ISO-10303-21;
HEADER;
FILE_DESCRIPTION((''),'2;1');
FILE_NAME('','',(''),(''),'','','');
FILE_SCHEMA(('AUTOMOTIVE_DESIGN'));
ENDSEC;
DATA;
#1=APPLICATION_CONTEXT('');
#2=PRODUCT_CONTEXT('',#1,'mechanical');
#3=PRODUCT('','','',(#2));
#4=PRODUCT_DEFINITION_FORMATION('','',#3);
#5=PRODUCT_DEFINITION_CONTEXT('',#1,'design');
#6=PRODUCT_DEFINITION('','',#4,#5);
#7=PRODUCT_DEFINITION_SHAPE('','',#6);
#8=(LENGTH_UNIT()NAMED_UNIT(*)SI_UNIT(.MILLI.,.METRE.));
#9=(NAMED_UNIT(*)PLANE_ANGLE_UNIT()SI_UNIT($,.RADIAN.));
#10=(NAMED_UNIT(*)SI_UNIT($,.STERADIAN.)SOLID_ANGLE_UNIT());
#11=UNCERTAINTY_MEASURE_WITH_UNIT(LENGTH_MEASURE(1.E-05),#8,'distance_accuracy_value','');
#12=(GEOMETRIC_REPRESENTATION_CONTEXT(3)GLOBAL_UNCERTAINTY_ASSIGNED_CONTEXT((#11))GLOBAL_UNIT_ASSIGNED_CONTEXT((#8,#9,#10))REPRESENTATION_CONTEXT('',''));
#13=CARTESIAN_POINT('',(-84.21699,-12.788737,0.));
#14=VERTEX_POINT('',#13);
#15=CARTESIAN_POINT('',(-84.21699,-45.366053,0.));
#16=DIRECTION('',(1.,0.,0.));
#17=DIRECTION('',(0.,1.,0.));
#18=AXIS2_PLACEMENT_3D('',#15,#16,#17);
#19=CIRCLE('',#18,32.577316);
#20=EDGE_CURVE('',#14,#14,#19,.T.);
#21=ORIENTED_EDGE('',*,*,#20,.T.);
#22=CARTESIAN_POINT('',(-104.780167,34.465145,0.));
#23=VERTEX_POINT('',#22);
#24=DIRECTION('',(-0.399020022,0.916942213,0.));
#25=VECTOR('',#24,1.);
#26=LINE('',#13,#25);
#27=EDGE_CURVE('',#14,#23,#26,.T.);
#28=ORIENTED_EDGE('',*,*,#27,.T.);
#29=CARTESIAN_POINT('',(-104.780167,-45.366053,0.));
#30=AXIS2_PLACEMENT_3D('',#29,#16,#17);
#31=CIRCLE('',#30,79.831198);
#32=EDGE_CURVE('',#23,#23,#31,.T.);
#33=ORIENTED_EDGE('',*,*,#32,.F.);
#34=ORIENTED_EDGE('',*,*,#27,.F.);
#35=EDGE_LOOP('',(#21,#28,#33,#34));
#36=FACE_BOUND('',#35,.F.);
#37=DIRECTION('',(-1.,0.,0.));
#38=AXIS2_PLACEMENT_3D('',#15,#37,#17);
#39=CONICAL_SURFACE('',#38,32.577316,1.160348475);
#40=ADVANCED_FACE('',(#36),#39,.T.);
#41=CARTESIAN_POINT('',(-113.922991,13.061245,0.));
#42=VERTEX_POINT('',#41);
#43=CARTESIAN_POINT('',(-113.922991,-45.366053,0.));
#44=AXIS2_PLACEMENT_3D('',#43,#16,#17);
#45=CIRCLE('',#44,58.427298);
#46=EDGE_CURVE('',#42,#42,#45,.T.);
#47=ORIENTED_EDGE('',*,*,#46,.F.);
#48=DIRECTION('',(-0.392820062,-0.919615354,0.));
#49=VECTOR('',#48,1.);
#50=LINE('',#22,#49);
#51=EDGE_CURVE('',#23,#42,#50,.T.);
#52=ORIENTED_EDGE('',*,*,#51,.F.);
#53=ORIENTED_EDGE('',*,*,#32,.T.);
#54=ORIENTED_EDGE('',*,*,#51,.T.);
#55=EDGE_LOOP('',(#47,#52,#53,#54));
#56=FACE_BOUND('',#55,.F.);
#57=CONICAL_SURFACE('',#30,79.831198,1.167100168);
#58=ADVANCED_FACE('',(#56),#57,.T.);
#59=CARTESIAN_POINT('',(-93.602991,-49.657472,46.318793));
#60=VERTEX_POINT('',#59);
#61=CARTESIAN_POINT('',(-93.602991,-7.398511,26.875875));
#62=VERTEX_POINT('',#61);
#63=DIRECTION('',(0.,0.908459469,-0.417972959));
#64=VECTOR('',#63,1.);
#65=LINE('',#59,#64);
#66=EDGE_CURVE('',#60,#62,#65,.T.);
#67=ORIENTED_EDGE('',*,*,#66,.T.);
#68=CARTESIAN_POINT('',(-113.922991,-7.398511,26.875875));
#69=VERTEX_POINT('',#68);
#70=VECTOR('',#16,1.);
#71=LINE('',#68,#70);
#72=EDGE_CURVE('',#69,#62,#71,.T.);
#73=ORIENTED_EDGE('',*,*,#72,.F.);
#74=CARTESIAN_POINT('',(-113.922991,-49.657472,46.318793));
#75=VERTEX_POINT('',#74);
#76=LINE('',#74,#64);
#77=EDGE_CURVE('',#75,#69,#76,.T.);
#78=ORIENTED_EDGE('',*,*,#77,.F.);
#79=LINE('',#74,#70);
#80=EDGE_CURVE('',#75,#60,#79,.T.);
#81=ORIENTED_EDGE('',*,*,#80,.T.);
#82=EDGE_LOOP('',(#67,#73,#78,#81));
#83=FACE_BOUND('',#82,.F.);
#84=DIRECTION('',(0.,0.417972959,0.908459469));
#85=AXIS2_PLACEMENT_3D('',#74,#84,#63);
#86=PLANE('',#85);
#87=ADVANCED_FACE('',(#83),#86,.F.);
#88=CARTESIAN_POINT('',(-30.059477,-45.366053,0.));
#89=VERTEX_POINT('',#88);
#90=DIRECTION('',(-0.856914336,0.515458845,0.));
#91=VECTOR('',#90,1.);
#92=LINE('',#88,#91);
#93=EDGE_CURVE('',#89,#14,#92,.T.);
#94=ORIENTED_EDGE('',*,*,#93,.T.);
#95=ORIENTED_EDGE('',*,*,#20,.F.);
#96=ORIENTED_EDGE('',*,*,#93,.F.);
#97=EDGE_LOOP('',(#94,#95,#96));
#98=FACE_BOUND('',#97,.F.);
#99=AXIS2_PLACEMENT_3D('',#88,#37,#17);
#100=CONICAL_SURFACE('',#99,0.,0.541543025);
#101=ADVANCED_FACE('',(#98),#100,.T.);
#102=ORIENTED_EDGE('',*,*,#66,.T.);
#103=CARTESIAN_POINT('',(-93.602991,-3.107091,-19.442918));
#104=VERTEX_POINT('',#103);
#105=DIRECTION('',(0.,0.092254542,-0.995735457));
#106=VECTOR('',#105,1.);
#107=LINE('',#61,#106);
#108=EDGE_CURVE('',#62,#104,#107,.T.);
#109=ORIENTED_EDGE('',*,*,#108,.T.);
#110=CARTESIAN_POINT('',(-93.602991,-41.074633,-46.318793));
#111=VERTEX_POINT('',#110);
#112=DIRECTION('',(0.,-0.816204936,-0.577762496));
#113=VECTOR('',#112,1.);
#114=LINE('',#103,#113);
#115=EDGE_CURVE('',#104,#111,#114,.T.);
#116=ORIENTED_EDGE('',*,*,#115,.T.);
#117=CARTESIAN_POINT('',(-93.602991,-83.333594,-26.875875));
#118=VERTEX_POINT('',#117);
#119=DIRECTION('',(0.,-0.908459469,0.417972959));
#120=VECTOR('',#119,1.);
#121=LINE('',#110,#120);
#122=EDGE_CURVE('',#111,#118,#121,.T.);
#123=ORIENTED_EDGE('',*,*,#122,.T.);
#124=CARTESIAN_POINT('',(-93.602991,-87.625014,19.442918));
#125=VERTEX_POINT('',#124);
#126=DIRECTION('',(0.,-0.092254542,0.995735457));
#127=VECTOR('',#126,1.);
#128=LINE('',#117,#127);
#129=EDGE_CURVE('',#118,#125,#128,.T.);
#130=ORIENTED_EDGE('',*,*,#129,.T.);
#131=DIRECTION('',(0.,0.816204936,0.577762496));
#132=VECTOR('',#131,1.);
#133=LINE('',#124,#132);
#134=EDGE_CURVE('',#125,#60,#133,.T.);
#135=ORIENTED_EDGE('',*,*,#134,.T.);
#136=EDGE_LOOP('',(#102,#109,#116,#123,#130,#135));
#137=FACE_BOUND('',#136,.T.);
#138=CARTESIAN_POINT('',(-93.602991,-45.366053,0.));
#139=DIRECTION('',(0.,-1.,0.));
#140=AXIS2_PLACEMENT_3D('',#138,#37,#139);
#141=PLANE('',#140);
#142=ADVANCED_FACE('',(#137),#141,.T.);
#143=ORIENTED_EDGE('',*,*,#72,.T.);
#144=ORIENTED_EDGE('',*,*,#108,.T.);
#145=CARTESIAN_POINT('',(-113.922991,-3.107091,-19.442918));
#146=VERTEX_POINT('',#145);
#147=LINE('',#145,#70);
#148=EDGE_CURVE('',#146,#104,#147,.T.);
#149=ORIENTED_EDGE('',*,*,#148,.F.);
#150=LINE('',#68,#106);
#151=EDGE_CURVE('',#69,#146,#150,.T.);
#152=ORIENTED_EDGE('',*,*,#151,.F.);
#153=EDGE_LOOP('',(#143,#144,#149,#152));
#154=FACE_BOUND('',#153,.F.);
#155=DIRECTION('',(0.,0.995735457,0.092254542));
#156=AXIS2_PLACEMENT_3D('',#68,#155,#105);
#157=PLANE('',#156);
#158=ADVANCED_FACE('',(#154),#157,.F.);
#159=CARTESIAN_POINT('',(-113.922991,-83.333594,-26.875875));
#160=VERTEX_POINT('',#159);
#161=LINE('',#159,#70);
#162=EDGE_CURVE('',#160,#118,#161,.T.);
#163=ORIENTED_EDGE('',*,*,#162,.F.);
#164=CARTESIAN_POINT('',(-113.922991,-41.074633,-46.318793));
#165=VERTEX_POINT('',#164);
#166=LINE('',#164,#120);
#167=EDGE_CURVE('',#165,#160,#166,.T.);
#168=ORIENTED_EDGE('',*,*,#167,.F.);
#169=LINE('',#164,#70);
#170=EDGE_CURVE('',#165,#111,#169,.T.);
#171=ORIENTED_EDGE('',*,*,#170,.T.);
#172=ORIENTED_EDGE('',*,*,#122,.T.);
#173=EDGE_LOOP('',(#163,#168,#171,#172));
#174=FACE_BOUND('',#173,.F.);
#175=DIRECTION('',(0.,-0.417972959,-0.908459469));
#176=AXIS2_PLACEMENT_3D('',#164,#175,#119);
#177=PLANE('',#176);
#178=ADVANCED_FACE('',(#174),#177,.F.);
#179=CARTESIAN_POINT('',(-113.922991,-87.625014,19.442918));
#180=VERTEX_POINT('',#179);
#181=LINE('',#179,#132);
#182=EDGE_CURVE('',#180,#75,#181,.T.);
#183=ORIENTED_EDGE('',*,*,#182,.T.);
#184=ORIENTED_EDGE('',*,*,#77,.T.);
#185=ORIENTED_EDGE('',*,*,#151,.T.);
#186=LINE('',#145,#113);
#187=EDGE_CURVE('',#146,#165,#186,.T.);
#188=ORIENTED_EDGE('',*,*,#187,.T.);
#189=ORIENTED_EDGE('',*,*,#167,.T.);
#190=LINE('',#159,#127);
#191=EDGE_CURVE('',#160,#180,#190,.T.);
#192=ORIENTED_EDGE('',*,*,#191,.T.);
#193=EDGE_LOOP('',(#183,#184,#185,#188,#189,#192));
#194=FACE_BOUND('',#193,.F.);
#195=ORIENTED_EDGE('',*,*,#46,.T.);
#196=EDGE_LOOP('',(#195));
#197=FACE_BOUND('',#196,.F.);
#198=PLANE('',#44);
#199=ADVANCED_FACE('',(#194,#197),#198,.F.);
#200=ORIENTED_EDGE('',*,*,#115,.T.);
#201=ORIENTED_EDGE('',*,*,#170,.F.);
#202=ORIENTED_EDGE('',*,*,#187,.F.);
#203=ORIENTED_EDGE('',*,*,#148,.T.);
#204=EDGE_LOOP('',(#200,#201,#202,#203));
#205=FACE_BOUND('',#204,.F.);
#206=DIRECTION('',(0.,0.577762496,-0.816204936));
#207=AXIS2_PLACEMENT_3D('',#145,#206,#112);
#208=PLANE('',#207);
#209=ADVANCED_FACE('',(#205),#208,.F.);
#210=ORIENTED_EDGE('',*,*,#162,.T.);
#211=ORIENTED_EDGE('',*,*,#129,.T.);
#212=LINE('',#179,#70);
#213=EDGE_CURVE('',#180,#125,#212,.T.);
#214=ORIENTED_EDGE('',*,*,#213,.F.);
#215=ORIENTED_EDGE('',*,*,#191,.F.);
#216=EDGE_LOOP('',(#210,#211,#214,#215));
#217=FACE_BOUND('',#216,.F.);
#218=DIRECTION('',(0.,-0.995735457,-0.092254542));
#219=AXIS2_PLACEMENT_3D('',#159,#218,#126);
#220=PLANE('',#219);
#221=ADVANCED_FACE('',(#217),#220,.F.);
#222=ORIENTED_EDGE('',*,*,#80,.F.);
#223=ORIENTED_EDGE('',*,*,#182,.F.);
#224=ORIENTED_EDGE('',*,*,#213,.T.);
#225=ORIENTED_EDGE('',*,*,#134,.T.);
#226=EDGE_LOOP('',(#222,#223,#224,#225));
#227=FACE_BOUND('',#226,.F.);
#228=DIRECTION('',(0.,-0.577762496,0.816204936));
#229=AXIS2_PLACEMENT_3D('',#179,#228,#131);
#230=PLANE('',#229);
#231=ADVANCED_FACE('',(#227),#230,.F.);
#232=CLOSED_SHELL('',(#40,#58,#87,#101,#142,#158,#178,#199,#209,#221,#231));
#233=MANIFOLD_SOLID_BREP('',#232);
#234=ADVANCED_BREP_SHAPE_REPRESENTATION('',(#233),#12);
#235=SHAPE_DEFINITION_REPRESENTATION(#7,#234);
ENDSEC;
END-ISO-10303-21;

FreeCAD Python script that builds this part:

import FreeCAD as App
import Part
import Sketcher

V = App.Vector
Q = App.Units.Quantity

doc = App.newDocument("Part")
body = doc.addObject("PartDesign::Body", "Body")

sketch1 = doc.addObject("Sketcher::SketchObject", "Sketch")
body.addObject(sketch1)
sketch1.AttachmentSupport = (doc.XY_Plane, [""])
sketch1.MapMode = "FlatFace"
sketch1.addGeometry(Part.LineSegment(V(-105, 34, 0), V(-114, 13, 0)), False)
sketch1.addGeometry(Part.LineSegment(V(-114, 13, 0), V(-114, -45, 0)), False)
sketch1.addGeometry(Part.LineSegment(V(-114, -45, 0), V(-30, -45, 0)), False)
sketch1.addGeometry(Part.LineSegment(V(-30, -45, 0), V(-84, -13, 0)), False)
sketch1.addGeometry(Part.LineSegment(V(-84, -13, 0), V(-105, 34, 0)), False)
sketch1.addGeometry(Part.LineSegment(V(-114, -45, 0), V(-30, -45, 0)), True)
sketch1.addConstraint(Sketcher.Constraint("Coincident", 0, 2, 1, 1))
sketch1.addConstraint(Sketcher.Constraint("Coincident", 1, 2, 2, 1))
sketch1.addConstraint(Sketcher.Constraint("Coincident", 2, 2, 3, 1))
sketch1.addConstraint(Sketcher.Constraint("Coincident", 3, 2, 4, 1))
sketch1.addConstraint(Sketcher.Constraint("Coincident", 4, 2, 0, 1))
sketch1.addConstraint(Sketcher.Constraint("Vertical", 1))
sketch1.addConstraint(Sketcher.Constraint("Horizontal", 2))
sketch1.addConstraint(Sketcher.Constraint("Horizontal", 5))
sketch1.addConstraint(Sketcher.Constraint("Coincident", 5, 1, 1, 2))
sketch1.addConstraint(Sketcher.Constraint("Equal", 2, 5))
sketch1.addConstraint(Sketcher.Constraint("Distance", 4, 51.534198))
sketch1.addConstraint(Sketcher.Constraint("DistanceX", 0, 2, 3, 2, 29.706001))
sketch1.addConstraint(Sketcher.Constraint("DistanceY", 0, 2, 4, 2, 21.4039))
sketch1.addConstraint(Sketcher.Constraint("DistanceY", 1, 2, 4, 2, 79.831198))
sketch1.addConstraint(Sketcher.Constraint("Distance", 0, 23.27484))
sketch1.addConstraint(Sketcher.Constraint("DistanceX", 2, 1, 2, 2, 83.863514))
sketch1.addConstraint(Sketcher.Constraint("DistanceX", 0, 2, -1, 1, 113.922991))
sketch1.addConstraint(Sketcher.Constraint("DistanceY", -1, 1, 0, 2, 13.061245))
revolution = doc.addObject("PartDesign::Revolution", "Revolution")
body.addObject(revolution)
revolution.Profile = sketch1
revolution.ReferenceAxis = (sketch1, ["Axis0"])
revolution.Angle = 360

sketch2 = doc.addObject("Sketcher::SketchObject", "Sketch001")
body.addObject(sketch2)
sketch2.AttachmentSupport = (doc.YZ_Plane, [""])
sketch2.MapMode = "FlatFace"
sketch2.AttachmentOffset = App.Placement(V(0, 0, -113.922991), App.Rotation())
sketch2.addGeometry(Part.LineSegment(V(-83, -27, 0), V(-88, 19, 0)), False)
sketch2.addGeometry(Part.LineSegment(V(-88, 19, 0), V(-50, 46, 0)), False)
sketch2.addGeometry(Part.LineSegment(V(-50, 46, 0), V(-7, 27, 0)), False)
sketch2.addGeometry(Part.LineSegment(V(-7, 27, 0), V(-3, -19, 0)), False)
sketch2.addGeometry(Part.LineSegment(V(-3, -19, 0), V(-41, -46, 0)), False)
sketch2.addGeometry(Part.LineSegment(V(-41, -46, 0), V(-83, -27, 0)), False)
sketch2.addConstraint(Sketcher.Constraint("Coincident", 0, 2, 1, 1))
sketch2.addConstraint(Sketcher.Constraint("Coincident", 1, 2, 2, 1))
sketch2.addConstraint(Sketcher.Constraint("Coincident", 2, 2, 3, 1))
sketch2.addConstraint(Sketcher.Constraint("Coincident", 3, 2, 4, 1))
sketch2.addConstraint(Sketcher.Constraint("Coincident", 4, 2, 5, 1))
sketch2.addConstraint(Sketcher.Constraint("Coincident", 5, 2, 0, 1))
sketch2.addConstraint(Sketcher.Constraint("Parallel", 0, 3))
sketch2.addConstraint(Sketcher.Constraint("Parallel", 1, 4))
sketch2.addConstraint(Sketcher.Constraint("Parallel", 2, 5))
sketch2.addConstraint(Sketcher.Constraint("Equal", 0, 1))
sketch2.addConstraint(Sketcher.Constraint("Equal", 1, 2))
sketch2.addConstraint(Sketcher.Constraint("Equal", 2, 3))
sketch2.addConstraint(Sketcher.Constraint("DistanceX", 1, 2, -1, 1, 49.657472))
sketch2.addConstraint(Sketcher.Constraint("DistanceX", 2, 2, -1, 1, 7.398511))
sketch2.addConstraint(Sketcher.Constraint("DistanceX", 3, 2, -1, 1, 3.107091))
sketch2.addConstraint(Sketcher.Constraint("DistanceX", 0, 2, 1, 2, 37.967542))
sketch2.addConstraint(Sketcher.Constraint("DistanceY", 3, 2, 1, 2, 65.761711))
sketch2.addConstraint(Sketcher.Constraint("DistanceY", -1, 1, 0, 2, 19.442918))
pocket1 = doc.addObject("PartDesign::Pocket", "Pocket")
body.addObject(pocket1)
pocket1.Profile = sketch2
pocket1.Length = Q("0.8 in")
pocket1.Reversed = True

doc.recompute()
